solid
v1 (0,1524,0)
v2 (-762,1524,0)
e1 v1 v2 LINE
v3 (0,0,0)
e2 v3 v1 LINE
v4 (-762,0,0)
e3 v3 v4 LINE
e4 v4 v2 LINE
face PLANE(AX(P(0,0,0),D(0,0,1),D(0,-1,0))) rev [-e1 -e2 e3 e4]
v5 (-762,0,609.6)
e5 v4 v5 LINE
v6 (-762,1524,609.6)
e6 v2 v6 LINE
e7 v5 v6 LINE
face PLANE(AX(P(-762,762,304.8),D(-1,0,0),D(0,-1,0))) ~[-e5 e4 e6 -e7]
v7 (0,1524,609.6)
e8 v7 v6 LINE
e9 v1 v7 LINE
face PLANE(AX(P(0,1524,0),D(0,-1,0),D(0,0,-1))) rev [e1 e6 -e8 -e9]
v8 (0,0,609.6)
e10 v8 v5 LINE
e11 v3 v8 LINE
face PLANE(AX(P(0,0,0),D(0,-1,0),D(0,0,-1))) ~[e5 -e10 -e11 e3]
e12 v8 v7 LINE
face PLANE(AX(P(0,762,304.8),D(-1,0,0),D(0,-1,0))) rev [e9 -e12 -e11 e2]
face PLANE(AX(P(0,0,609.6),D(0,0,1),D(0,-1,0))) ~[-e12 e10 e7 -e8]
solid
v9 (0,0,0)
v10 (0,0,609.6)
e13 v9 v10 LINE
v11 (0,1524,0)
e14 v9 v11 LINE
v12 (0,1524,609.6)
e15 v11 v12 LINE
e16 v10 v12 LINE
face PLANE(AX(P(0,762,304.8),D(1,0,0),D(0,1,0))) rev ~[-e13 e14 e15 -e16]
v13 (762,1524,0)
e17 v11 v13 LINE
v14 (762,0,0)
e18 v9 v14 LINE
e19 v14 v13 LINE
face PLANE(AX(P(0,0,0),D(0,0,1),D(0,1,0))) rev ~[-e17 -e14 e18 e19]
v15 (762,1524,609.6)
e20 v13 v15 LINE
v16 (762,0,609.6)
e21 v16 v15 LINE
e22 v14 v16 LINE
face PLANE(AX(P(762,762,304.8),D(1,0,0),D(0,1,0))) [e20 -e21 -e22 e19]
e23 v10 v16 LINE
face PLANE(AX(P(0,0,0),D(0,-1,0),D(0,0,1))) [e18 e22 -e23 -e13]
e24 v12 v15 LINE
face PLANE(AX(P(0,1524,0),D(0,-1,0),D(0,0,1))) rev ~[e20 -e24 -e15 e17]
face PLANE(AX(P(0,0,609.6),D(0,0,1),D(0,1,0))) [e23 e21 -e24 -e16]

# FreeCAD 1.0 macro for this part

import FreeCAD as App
import Part
import Sketcher

V = App.Vector
Q = App.Units.Quantity

doc = App.newDocument("Part")
body = doc.addObject("PartDesign::Body", "Body")

sketch1 = body.newObject("Sketcher::SketchObject", "Sketch")
sketch1.AttachmentSupport = (doc.getObject("YZ_Plane"), [""])
sketch1.MapMode = "FlatFace"
sketch1.addGeometry(Part.LineSegment(V(0, 610, 0), V(0, 0, 0)), False)
sketch1.addGeometry(Part.LineSegment(V(0, 0, 0), V(1524, 0, 0)), False)
sketch1.addGeometry(Part.LineSegment(V(1524, 0, 0), V(1524, 610, 0)), False)
sketch1.addGeometry(Part.LineSegment(V(1524, 610, 0), V(0, 610, 0)), False)
sketch1.addConstraint(Sketcher.Constraint("Coincident", 0, 2, 1, 1))
sketch1.addConstraint(Sketcher.Constraint("Coincident", 1, 2, 2, 1))
sketch1.addConstraint(Sketcher.Constraint("Coincident", 2, 2, 3, 1))
sketch1.addConstraint(Sketcher.Constraint("Coincident", 3, 2, 0, 1))
sketch1.addConstraint(Sketcher.Constraint("Vertical", 0))
sketch1.addConstraint(Sketcher.Constraint("Horizontal", 1))
sketch1.addConstraint(Sketcher.Constraint("Vertical", 2))
sketch1.addConstraint(Sketcher.Constraint("Horizontal", 3))
sketch1.addConstraint(Sketcher.Constraint("Coincident", 0, 2, -1, 1))
sketch1.addConstraint(Sketcher.Constraint("DistanceX", 1, 1, 1, 2, Q("60 in")))
sketch1.addConstraint(Sketcher.Constraint("DistanceY", 0, 2, 0, 1, Q("24 in")))
pad1 = body.newObject("PartDesign::Pad", "Pad")
pad1.Profile = sketch1
pad1.Length = Q("30 in")
body2 = doc.addObject("PartDesign::Body", "Body001")
doc.recompute()

mirroring = doc.addObject("Part::Mirroring", "Mirroring")
mirroring.Source = body
mirroring.Base = V(0, 0, 0)
mirroring.Normal = V(1, 0, 0)
body2.BaseFeature = mirroring
doc.recompute()
mirroring.Visibility = False

doc.recompute()
